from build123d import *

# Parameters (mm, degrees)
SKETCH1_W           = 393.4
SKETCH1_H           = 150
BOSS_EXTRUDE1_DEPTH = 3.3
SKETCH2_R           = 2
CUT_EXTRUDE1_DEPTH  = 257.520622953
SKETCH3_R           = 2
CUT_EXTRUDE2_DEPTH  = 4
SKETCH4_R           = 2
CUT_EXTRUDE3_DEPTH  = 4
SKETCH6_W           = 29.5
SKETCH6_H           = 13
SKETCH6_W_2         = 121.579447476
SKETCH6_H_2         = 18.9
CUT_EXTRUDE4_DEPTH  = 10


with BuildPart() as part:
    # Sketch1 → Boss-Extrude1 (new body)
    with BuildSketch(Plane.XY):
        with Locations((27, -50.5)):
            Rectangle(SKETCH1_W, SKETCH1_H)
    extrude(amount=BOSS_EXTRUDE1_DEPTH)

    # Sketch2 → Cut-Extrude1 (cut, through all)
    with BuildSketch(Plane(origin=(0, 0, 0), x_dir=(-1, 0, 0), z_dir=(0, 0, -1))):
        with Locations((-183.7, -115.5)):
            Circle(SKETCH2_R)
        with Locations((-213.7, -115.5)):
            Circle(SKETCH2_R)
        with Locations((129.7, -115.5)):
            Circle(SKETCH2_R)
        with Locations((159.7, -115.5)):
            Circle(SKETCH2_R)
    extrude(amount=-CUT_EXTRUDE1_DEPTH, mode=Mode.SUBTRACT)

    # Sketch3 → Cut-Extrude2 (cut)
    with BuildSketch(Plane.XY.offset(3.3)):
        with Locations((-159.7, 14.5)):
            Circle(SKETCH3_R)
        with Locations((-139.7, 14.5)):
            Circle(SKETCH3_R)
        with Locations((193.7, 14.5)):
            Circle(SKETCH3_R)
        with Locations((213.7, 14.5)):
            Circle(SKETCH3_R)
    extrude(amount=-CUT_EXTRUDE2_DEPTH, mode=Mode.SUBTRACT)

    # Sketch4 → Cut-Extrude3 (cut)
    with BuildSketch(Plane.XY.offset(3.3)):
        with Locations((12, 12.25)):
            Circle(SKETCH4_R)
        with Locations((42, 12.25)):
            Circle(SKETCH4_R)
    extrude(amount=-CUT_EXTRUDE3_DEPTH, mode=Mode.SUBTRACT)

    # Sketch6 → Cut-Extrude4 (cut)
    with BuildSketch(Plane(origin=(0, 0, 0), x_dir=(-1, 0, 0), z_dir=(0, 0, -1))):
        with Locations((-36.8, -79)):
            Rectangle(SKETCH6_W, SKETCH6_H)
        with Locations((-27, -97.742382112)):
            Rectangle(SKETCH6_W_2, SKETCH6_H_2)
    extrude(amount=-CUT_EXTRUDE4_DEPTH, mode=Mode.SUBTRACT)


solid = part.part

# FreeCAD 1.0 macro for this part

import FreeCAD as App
import Part
import Sketcher
from FreeCAD import Vector

doc = App.newDocument("Part")
params = doc.addObject("Spreadsheet::Sheet", "Params")
for row, (alias, value) in enumerate([
    ("sketch1_height", "150 mm"),
    ("sketch1_width", "393.4 mm"),
    ("pad1_length", "3.3 mm"),
    ("sketch2_diameter", "4 mm"),
    ("sketch3_diameter", "4 mm"),
    ("pocket2_length", "4 mm"),
    ("sketch4_diameter", "4 mm"),
    ("pocket3_length", "4 mm"),
    ("sketch5_height", "13 mm"),
    ("sketch5_width", "29.5 mm"),
    ("sketch5_height2", "18.9 mm"),
    ("pocket4_length", "10 mm"),
], start=1):
    params.set(f"A{row}", alias)
    params.set(f"B{row}", "=" + value)
    params.setAlias(f"B{row}", alias)

body = doc.addObject("PartDesign::Body", "Body")

# Sketch on XY plane
sketch1 = body.newObject("Sketcher::SketchObject", "Sketch")
sketch1.AttachmentSupport = (doc.getObject("XY_Plane"), [""])
sketch1.MapMode = "FlatFace"
sketch1.addGeometry([
    Part.LineSegment(Vector(-170, 24, 0), Vector(-170, -126, 0)),
    Part.LineSegment(Vector(-170, -126, 0), Vector(224, -126, 0)),
    Part.LineSegment(Vector(224, -126, 0), Vector(224, 24, 0)),
    Part.LineSegment(Vector(224, 24, 0), Vector(-170, 24, 0)),
], False)
sketch1.addConstraint([
    Sketcher.Constraint("Coincident", 0, 2, 1, 1),
    Sketcher.Constraint("Coincident", 1, 2, 2, 1),
    Sketcher.Constraint("Coincident", 2, 2, 3, 1),
    Sketcher.Constraint("Coincident", 3, 2, 0, 1),
    Sketcher.Constraint("Vertical", 0),
    Sketcher.Constraint("Horizontal", 1),
    Sketcher.Constraint("Vertical", 2),
    Sketcher.Constraint("Horizontal", 3),
    Sketcher.Constraint("DistanceY", 0, 2, 0, 1, 150.0),
    Sketcher.Constraint("DistanceX", 1, 1, 1, 2, 393.4),
    Sketcher.Constraint("DistanceX", 0, 2, -1, 1, 169.7),
    Sketcher.Constraint("DistanceY", 0, 2, -1, 1, 125.5),
])
sketch1.setExpression("Constraints[8]", "Params.sketch1_height")
sketch1.setExpression("Constraints[9]", "Params.sketch1_width")
pad1 = body.newObject("PartDesign::Pad", "Pad")
pad1.Profile = sketch1
pad1.setExpression("Length", "Params.pad1_length")

# Sketch on XY plane
sketch2 = body.newObject("Sketcher::SketchObject", "Sketch001")
sketch2.AttachmentSupport = (doc.getObject("XY_Plane"), [""])
sketch2.MapMode = "FlatFace"
sketch2.addGeometry([
    Part.Circle(Vector(183.7, -115.5, 0), Vector(0, 0, 1), 2),
    Part.Circle(Vector(213.7, -115.5, 0), Vector(0, 0, 1), 2),
    Part.Circle(Vector(-129.7, -115.5, 0), Vector(0, 0, 1), 2),
    Part.Circle(Vector(-159.7, -115.5, 0), Vector(0, 0, 1), 2),
], False)
sketch2.addConstraint([
    Sketcher.Constraint("Equal", 0, 1),
    Sketcher.Constraint("Equal", 1, 2),
    Sketcher.Constraint("Equal", 2, 3),
    Sketcher.Constraint("Horizontal", 0, 3, 1, 3),
    Sketcher.Constraint("Horizontal", 1, 3, 2, 3),
    Sketcher.Constraint("Horizontal", 2, 3, 3, 3),
    Sketcher.Constraint("Diameter", 0, 4.0),
    Sketcher.Constraint("DistanceX", 0, 3, 1, 3, 30.0),
    Sketcher.Constraint("DistanceX", 3, 3, 2, 3, 30.0),
    Sketcher.Constraint("DistanceX", -1, 1, 0, 3, 183.7),
    Sketcher.Constraint("DistanceY", 0, 3, -1, 1, 115.5),
    Sketcher.Constraint("DistanceX", 2, 3, -1, 1, 129.7),
])
sketch2.setExpression("Constraints[6]", "Params.sketch2_diameter")
pocket1 = body.newObject("PartDesign::Pocket", "Pocket")
pocket1.Profile = sketch2
pocket1.Type = "ThroughAll"
pocket1.Reversed = True

# Sketch on XY plane
sketch3 = body.newObject("Sketcher::SketchObject", "Sketch002")
sketch3.AttachmentSupport = (doc.getObject("XY_Plane"), [""])
sketch3.MapMode = "FlatFace"
sketch3.AttachmentOffset = App.Placement(Vector(0, 0, 3.3), App.Rotation())
sketch3.addGeometry([
    Part.Circle(Vector(-159.7, 14.5, 0), Vector(0, 0, 1), 2),
    Part.Circle(Vector(-139.7, 14.5, 0), Vector(0, 0, 1), 2),
    Part.Circle(Vector(193.7, 14.5, 0), Vector(0, 0, 1), 2),
    Part.Circle(Vector(213.7, 14.5, 0), Vector(0, 0, 1), 2),
], False)
sketch3.addConstraint([
    Sketcher.Constraint("Equal", 0, 1),
    Sketcher.Constraint("Equal", 1, 2),
    Sketcher.Constraint("Equal", 2, 3),
    Sketcher.Constraint("Horizontal", 0, 3, 1, 3),
    Sketcher.Constraint("Horizontal", 1, 3, 2, 3),
    Sketcher.Constraint("Horizontal", 2, 3, 3, 3),
    Sketcher.Constraint("Diameter", 0, 4.0),
    Sketcher.Constraint("DistanceX", 0, 3, 1, 3, 20.0),
    Sketcher.Constraint("DistanceX", 2, 3, 3, 3, 20.0),
    Sketcher.Constraint("DistanceX", 0, 3, -1, 1, 159.7),
    Sketcher.Constraint("DistanceY", -1, 1, 0, 3, 14.5),
    Sketcher.Constraint("DistanceX", -1, 1, 2, 3, 193.7),
])
sketch3.setExpression("Constraints[6]", "Params.sketch3_diameter")
pocket2 = body.newObject("PartDesign::Pocket", "Pocket001")
pocket2.Profile = sketch3
pocket2.setExpression("Length", "Params.pocket2_length")

# Sketch on XY plane
sketch4 = body.newObject("Sketcher::SketchObject", "Sketch003")
sketch4.AttachmentSupport = (doc.getObject("XY_Plane"), [""])
sketch4.MapMode = "FlatFace"
sketch4.AttachmentOffset = App.Placement(Vector(0, 0, 3.3), App.Rotation())
sketch4.addGeometry([
    Part.Circle(Vector(12, 12.2, 0), Vector(0, 0, 1), 2),
    Part.Circle(Vector(42, 12.2, 0), Vector(0, 0, 1), 2),
], False)
sketch4.addConstraint([
    Sketcher.Constraint("Equal", 0, 1),
    Sketcher.Constraint("Horizontal", 0, 3, 1, 3),
    Sketcher.Constraint("Diameter", 0, 4.0),
    Sketcher.Constraint("DistanceX", -1, 1, 0, 3, 12.0),
    Sketcher.Constraint("DistanceX", -1, 1, 1, 3, 42.0),
    Sketcher.Constraint("DistanceY", -1, 1, 0, 3, 12.25),
])
sketch4.setExpression("Constraints[2]", "Params.sketch4_diameter")
pocket3 = body.newObject("PartDesign::Pocket", "Pocket002")
pocket3.Profile = sketch4
pocket3.setExpression("Length", "Params.pocket3_length")

# Sketch on XY plane
sketch5 = body.newObject("Sketcher::SketchObject", "Sketch004")
sketch5.AttachmentSupport = (doc.getObject("XY_Plane"), [""])
sketch5.MapMode = "FlatFace"
sketch5.addGeometry([
    Part.LineSegment(Vector(52, -72, 0), Vector(52, -86, 0)),  # 0
    Part.LineSegment(Vector(52, -86, 0), Vector(22, -86, 0)),  # 1
    Part.LineSegment(Vector(22, -86, 0), Vector(22, -72, 0)),  # 2
    Part.LineSegment(Vector(22, -72, 0), Vector(52, -72, 0)),  # 3
    Part.LineSegment(Vector(88, -88, 0), Vector(88, -107, 0)),  # 4
    Part.LineSegment(Vector(88, -107, 0), Vector(-34, -107, 0)),  # 5
    Part.LineSegment(Vector(-34, -107, 0), Vector(-34, -88, 0)),  # 6
    Part.LineSegment(Vector(-34, -88, 0), Vector(88, -88, 0)),  # 7
], False)
sketch5.addConstraint([
    Sketcher.Constraint("Coincident", 0, 2, 1, 1),
    Sketcher.Constraint("Coincident", 1, 2, 2, 1),
    Sketcher.Constraint("Coincident", 2, 2, 3, 1),
    Sketcher.Constraint("Coincident", 3, 2, 0, 1),
    Sketcher.Constraint("Coincident", 4, 2, 5, 1),
    Sketcher.Constraint("Coincident", 5, 2, 6, 1),
    Sketcher.Constraint("Coincident", 6, 2, 7, 1),
    Sketcher.Constraint("Coincident", 7, 2, 4, 1),
    Sketcher.Constraint("Vertical", 0),
    Sketcher.Constraint("Horizontal", 1),
    Sketcher.Constraint("Vertical", 2),
    Sketcher.Constraint("Horizontal", 3),
    Sketcher.Constraint("Vertical", 4),
    Sketcher.Constraint("Horizontal", 5),
    Sketcher.Constraint("Vertical", 6),
    Sketcher.Constraint("Horizontal", 7),
    Sketcher.Constraint("DistanceY", 0, 2, 0, 1, 13.0),
    Sketcher.Constraint("DistanceX", 1, 2, 1, 1, 29.5),
    Sketcher.Constraint("DistanceY", 4, 2, 4, 1, 18.9),
    Sketcher.Constraint("DistanceY", 0, 2, -1, 1, 85.5),
    Sketcher.Constraint("DistanceX", -1, 1, 0, 2, 51.55),
    Sketcher.Constraint("DistanceX", 5, 2, 5, 1, 121.579447),
    Sketcher.Constraint("DistanceX", -1, 1, 4, 2, 87.789724),
    Sketcher.Constraint("DistanceY", 4, 2, -1, 1, 107.192382),
])
sketch5.setExpression("Constraints[16]", "Params.sketch5_height")
sketch5.setExpression("Constraints[17]", "Params.sketch5_width")
sketch5.setExpression("Constraints[18]", "Params.sketch5_height2")
pocket4 = body.newObject("PartDesign::Pocket", "Pocket003")
pocket4.Profile = sketch5
pocket4.setExpression("Length", "Params.pocket4_length")
pocket4.Reversed = True

doc.recompute()
